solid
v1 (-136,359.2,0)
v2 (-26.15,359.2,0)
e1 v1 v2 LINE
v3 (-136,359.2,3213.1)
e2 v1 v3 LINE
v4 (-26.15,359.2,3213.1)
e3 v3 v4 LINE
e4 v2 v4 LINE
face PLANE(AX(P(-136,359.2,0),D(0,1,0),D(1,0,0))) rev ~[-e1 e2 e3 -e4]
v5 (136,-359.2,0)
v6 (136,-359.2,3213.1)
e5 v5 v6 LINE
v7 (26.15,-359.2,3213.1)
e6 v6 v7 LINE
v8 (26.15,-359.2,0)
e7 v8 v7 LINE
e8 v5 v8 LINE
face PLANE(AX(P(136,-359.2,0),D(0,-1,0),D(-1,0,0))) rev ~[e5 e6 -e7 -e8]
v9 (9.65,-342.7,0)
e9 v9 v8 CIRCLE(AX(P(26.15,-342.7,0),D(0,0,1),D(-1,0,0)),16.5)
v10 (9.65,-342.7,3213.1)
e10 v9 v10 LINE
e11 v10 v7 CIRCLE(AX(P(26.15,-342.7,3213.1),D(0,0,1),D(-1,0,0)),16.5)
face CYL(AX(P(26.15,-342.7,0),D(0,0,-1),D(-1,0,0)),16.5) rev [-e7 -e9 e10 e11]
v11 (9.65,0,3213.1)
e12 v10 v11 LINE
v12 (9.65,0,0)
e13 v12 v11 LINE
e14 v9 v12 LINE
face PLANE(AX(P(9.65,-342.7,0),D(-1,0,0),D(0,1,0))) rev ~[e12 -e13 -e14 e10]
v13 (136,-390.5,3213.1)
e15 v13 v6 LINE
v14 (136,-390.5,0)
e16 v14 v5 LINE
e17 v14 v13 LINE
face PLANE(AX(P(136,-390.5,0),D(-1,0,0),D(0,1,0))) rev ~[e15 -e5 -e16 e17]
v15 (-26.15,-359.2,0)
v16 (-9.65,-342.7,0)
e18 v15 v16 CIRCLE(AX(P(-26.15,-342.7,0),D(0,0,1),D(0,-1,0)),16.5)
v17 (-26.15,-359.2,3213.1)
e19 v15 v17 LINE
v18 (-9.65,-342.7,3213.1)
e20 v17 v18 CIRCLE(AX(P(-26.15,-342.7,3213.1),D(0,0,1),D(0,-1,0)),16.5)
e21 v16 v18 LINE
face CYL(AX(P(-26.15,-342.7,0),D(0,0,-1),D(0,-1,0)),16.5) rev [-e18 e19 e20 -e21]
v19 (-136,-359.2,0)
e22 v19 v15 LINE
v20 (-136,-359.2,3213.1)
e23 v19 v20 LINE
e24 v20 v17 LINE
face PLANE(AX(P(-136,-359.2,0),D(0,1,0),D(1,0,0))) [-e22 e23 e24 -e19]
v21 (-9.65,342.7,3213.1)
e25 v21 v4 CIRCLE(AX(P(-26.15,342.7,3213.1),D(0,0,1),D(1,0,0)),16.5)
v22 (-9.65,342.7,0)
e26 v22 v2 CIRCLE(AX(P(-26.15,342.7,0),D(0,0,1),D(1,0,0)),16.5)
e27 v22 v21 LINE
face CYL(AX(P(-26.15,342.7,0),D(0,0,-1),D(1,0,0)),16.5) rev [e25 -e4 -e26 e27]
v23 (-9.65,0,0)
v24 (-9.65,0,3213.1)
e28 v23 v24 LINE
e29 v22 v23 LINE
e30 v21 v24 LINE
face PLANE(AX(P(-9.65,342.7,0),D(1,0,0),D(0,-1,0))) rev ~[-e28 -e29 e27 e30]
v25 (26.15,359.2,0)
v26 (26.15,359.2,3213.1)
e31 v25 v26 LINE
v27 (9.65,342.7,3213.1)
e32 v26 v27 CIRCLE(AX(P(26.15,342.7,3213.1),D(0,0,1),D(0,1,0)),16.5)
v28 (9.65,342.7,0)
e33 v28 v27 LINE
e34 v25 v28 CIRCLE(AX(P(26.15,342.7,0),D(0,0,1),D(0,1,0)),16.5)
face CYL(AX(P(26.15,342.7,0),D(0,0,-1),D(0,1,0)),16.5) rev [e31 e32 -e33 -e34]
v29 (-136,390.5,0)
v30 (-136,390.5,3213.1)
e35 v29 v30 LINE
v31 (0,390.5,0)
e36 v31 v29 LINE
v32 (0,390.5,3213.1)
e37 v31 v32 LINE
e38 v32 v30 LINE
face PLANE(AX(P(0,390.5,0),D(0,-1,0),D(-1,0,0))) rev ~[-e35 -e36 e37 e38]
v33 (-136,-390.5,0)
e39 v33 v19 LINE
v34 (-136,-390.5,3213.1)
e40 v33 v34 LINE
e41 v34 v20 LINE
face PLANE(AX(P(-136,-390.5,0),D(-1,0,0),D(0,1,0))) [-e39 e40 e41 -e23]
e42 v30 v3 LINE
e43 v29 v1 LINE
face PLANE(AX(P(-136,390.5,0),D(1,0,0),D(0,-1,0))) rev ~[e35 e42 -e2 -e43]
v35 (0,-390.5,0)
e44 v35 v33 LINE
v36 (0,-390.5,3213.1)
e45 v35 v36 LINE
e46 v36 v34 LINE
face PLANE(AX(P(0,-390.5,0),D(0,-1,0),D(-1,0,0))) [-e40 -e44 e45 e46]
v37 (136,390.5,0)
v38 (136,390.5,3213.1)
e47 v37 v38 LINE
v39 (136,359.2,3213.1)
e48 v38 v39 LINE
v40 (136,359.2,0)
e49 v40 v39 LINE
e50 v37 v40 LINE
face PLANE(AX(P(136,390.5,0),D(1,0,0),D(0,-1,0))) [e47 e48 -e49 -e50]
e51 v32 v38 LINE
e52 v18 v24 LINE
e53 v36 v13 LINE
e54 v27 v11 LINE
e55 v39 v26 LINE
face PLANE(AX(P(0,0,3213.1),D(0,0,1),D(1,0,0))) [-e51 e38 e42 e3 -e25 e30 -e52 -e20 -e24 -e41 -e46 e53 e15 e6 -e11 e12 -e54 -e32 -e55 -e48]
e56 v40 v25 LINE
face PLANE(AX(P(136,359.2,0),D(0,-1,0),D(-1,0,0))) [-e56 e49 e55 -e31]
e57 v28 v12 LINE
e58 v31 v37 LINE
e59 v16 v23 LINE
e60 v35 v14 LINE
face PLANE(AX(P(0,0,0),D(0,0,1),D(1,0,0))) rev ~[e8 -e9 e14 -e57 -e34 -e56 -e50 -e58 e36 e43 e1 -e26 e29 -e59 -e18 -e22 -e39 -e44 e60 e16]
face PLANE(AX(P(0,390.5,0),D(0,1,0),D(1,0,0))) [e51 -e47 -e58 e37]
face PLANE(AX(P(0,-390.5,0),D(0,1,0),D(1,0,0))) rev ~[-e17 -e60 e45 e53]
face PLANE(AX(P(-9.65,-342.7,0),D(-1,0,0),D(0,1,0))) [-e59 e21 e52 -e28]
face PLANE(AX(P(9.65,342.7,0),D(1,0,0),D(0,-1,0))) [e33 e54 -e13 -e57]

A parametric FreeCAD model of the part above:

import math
import FreeCAD as App
import Part
import Sketcher

V = App.Vector
Q = App.Units.Quantity

doc = App.newDocument("Part")
body = doc.addObject("PartDesign::Body", "Body")

# Sketch on XY plane
sketch1 = doc.addObject("Sketcher::SketchObject", "Sketch")
body.addObject(sketch1)
sketch1.AttachmentSupport = (doc.XY_Plane, [""])
sketch1.MapMode = "FlatFace"
sketch1.addGeometry([
    Part.LineSegment(V(-136, -359.2, 0), V(-136, -390.5, 0)),  # 0
    Part.LineSegment(V(-136, -390.5, 0), V(136, -390.5, 0)),  # 1
    Part.LineSegment(V(136, -390.5, 0), V(136, -359.2, 0)),  # 2
    Part.LineSegment(V(136, -359.2, 0), V(26.15, -359.2, 0)),  # 3
    Part.ArcOfCircle(Part.Circle(V(26.15, -342.7, 0), V(0, 0, 1), 16.5), math.radians(180), math.radians(270)),  # 4
    Part.LineSegment(V(9.65, -342.7, 0), V(9.65, 342.7, 0)),  # 5
    Part.ArcOfCircle(Part.Circle(V(26.15, 342.7, 0), V(0, 0, 1), 16.5), math.radians(90), math.radians(180)),  # 6
    Part.LineSegment(V(26.15, 359.2, 0), V(136, 359.2, 0)),  # 7
    Part.LineSegment(V(136, 359.2, 0), V(136, 390.5, 0)),  # 8
    Part.LineSegment(V(136, 390.5, 0), V(-136, 390.5, 0)),  # 9
    Part.LineSegment(V(-136, 390.5, 0), V(-136, 359.2, 0)),  # 10
    Part.LineSegment(V(-136, 359.2, 0), V(-26.15, 359.2, 0)),  # 11
    Part.ArcOfCircle(Part.Circle(V(-26.15, 342.7, 0), V(0, 0, 1), 16.5), math.radians(0), math.radians(90)),  # 12
    Part.LineSegment(V(-9.65, 342.7, 0), V(-9.65, -342.7, 0)),  # 13
    Part.ArcOfCircle(Part.Circle(V(-26.15, -342.7, 0), V(0, 0, 1), 16.5), math.radians(-90), math.radians(0)),  # 14
    Part.LineSegment(V(-26.15, -359.2, 0), V(-136, -359.2, 0)),  # 15
], False)
sketch1.addConstraint([
    Sketcher.Constraint("Coincident", 0, 2, 1, 1),
    Sketcher.Constraint("Coincident", 1, 2, 2, 1),
    Sketcher.Constraint("Coincident", 2, 2, 3, 1),
    Sketcher.Constraint("Tangent", 3, 2, 4, 2),
    Sketcher.Constraint("Tangent", 4, 1, 5, 1),
    Sketcher.Constraint("Tangent", 5, 2, 6, 2),
    Sketcher.Constraint("Tangent", 6, 1, 7, 1),
    Sketcher.Constraint("Coincident", 7, 2, 8, 1),
    Sketcher.Constraint("Coincident", 8, 2, 9, 1),
    Sketcher.Constraint("Coincident", 9, 2, 10, 1),
    Sketcher.Constraint("Coincident", 10, 2, 11, 1),
    Sketcher.Constraint("Tangent", 11, 2, 12, 2),
    Sketcher.Constraint("Tangent", 12, 1, 13, 1),
    Sketcher.Constraint("Tangent", 13, 2, 14, 2),
    Sketcher.Constraint("Tangent", 14, 1, 15, 1),
    Sketcher.Constraint("Coincident", 15, 2, 0, 1),
    Sketcher.Constraint("Vertical", 0),
    Sketcher.Constraint("Horizontal", 1),
    Sketcher.Constraint("Vertical", 2),
    Sketcher.Constraint("Horizontal", 3),
    Sketcher.Constraint("Vertical", 5),
    Sketcher.Constraint("Horizontal", 7),
    Sketcher.Constraint("Vertical", 8),
    Sketcher.Constraint("Horizontal", 9),
    Sketcher.Constraint("Vertical", 10),
    Sketcher.Constraint("Horizontal", 11),
    Sketcher.Constraint("Vertical", 13),
    Sketcher.Constraint("Horizontal", 15),
    Sketcher.Constraint("Equal", 4, 6),
    Sketcher.Constraint("Equal", 6, 12),
    Sketcher.Constraint("Equal", 12, 14),
    Sketcher.Constraint("Symmetric", 4, 3, 12, 3, -1, 1),
    Sketcher.Constraint("Symmetric", 0, 2, 8, 2, -1, 1),
    Sketcher.Constraint("Symmetric", 7, 2, 10, 2, -2),
    Sketcher.Constraint("Symmetric", 2, 2, 15, 2, -2),
    Sketcher.Constraint("Radius", 4, Q("16.5 mm")),
    Sketcher.Constraint("DistanceY", 0, 2, 0, 1, Q("31.3 mm")),
    Sketcher.Constraint("DistanceX", 0, 2, -1, 1, Q("136 mm")),
    Sketcher.Constraint("DistanceY", 0, 2, -1, 1, Q("390.5 mm")),
    Sketcher.Constraint("DistanceX", -1, 1, 4, 1, Q("9.65 mm")),
])
pad1 = doc.addObject("PartDesign::Pad", "Pad")
body.addObject(pad1)
pad1.Profile = sketch1
pad1.Length = 3213.1

doc.recompute()
